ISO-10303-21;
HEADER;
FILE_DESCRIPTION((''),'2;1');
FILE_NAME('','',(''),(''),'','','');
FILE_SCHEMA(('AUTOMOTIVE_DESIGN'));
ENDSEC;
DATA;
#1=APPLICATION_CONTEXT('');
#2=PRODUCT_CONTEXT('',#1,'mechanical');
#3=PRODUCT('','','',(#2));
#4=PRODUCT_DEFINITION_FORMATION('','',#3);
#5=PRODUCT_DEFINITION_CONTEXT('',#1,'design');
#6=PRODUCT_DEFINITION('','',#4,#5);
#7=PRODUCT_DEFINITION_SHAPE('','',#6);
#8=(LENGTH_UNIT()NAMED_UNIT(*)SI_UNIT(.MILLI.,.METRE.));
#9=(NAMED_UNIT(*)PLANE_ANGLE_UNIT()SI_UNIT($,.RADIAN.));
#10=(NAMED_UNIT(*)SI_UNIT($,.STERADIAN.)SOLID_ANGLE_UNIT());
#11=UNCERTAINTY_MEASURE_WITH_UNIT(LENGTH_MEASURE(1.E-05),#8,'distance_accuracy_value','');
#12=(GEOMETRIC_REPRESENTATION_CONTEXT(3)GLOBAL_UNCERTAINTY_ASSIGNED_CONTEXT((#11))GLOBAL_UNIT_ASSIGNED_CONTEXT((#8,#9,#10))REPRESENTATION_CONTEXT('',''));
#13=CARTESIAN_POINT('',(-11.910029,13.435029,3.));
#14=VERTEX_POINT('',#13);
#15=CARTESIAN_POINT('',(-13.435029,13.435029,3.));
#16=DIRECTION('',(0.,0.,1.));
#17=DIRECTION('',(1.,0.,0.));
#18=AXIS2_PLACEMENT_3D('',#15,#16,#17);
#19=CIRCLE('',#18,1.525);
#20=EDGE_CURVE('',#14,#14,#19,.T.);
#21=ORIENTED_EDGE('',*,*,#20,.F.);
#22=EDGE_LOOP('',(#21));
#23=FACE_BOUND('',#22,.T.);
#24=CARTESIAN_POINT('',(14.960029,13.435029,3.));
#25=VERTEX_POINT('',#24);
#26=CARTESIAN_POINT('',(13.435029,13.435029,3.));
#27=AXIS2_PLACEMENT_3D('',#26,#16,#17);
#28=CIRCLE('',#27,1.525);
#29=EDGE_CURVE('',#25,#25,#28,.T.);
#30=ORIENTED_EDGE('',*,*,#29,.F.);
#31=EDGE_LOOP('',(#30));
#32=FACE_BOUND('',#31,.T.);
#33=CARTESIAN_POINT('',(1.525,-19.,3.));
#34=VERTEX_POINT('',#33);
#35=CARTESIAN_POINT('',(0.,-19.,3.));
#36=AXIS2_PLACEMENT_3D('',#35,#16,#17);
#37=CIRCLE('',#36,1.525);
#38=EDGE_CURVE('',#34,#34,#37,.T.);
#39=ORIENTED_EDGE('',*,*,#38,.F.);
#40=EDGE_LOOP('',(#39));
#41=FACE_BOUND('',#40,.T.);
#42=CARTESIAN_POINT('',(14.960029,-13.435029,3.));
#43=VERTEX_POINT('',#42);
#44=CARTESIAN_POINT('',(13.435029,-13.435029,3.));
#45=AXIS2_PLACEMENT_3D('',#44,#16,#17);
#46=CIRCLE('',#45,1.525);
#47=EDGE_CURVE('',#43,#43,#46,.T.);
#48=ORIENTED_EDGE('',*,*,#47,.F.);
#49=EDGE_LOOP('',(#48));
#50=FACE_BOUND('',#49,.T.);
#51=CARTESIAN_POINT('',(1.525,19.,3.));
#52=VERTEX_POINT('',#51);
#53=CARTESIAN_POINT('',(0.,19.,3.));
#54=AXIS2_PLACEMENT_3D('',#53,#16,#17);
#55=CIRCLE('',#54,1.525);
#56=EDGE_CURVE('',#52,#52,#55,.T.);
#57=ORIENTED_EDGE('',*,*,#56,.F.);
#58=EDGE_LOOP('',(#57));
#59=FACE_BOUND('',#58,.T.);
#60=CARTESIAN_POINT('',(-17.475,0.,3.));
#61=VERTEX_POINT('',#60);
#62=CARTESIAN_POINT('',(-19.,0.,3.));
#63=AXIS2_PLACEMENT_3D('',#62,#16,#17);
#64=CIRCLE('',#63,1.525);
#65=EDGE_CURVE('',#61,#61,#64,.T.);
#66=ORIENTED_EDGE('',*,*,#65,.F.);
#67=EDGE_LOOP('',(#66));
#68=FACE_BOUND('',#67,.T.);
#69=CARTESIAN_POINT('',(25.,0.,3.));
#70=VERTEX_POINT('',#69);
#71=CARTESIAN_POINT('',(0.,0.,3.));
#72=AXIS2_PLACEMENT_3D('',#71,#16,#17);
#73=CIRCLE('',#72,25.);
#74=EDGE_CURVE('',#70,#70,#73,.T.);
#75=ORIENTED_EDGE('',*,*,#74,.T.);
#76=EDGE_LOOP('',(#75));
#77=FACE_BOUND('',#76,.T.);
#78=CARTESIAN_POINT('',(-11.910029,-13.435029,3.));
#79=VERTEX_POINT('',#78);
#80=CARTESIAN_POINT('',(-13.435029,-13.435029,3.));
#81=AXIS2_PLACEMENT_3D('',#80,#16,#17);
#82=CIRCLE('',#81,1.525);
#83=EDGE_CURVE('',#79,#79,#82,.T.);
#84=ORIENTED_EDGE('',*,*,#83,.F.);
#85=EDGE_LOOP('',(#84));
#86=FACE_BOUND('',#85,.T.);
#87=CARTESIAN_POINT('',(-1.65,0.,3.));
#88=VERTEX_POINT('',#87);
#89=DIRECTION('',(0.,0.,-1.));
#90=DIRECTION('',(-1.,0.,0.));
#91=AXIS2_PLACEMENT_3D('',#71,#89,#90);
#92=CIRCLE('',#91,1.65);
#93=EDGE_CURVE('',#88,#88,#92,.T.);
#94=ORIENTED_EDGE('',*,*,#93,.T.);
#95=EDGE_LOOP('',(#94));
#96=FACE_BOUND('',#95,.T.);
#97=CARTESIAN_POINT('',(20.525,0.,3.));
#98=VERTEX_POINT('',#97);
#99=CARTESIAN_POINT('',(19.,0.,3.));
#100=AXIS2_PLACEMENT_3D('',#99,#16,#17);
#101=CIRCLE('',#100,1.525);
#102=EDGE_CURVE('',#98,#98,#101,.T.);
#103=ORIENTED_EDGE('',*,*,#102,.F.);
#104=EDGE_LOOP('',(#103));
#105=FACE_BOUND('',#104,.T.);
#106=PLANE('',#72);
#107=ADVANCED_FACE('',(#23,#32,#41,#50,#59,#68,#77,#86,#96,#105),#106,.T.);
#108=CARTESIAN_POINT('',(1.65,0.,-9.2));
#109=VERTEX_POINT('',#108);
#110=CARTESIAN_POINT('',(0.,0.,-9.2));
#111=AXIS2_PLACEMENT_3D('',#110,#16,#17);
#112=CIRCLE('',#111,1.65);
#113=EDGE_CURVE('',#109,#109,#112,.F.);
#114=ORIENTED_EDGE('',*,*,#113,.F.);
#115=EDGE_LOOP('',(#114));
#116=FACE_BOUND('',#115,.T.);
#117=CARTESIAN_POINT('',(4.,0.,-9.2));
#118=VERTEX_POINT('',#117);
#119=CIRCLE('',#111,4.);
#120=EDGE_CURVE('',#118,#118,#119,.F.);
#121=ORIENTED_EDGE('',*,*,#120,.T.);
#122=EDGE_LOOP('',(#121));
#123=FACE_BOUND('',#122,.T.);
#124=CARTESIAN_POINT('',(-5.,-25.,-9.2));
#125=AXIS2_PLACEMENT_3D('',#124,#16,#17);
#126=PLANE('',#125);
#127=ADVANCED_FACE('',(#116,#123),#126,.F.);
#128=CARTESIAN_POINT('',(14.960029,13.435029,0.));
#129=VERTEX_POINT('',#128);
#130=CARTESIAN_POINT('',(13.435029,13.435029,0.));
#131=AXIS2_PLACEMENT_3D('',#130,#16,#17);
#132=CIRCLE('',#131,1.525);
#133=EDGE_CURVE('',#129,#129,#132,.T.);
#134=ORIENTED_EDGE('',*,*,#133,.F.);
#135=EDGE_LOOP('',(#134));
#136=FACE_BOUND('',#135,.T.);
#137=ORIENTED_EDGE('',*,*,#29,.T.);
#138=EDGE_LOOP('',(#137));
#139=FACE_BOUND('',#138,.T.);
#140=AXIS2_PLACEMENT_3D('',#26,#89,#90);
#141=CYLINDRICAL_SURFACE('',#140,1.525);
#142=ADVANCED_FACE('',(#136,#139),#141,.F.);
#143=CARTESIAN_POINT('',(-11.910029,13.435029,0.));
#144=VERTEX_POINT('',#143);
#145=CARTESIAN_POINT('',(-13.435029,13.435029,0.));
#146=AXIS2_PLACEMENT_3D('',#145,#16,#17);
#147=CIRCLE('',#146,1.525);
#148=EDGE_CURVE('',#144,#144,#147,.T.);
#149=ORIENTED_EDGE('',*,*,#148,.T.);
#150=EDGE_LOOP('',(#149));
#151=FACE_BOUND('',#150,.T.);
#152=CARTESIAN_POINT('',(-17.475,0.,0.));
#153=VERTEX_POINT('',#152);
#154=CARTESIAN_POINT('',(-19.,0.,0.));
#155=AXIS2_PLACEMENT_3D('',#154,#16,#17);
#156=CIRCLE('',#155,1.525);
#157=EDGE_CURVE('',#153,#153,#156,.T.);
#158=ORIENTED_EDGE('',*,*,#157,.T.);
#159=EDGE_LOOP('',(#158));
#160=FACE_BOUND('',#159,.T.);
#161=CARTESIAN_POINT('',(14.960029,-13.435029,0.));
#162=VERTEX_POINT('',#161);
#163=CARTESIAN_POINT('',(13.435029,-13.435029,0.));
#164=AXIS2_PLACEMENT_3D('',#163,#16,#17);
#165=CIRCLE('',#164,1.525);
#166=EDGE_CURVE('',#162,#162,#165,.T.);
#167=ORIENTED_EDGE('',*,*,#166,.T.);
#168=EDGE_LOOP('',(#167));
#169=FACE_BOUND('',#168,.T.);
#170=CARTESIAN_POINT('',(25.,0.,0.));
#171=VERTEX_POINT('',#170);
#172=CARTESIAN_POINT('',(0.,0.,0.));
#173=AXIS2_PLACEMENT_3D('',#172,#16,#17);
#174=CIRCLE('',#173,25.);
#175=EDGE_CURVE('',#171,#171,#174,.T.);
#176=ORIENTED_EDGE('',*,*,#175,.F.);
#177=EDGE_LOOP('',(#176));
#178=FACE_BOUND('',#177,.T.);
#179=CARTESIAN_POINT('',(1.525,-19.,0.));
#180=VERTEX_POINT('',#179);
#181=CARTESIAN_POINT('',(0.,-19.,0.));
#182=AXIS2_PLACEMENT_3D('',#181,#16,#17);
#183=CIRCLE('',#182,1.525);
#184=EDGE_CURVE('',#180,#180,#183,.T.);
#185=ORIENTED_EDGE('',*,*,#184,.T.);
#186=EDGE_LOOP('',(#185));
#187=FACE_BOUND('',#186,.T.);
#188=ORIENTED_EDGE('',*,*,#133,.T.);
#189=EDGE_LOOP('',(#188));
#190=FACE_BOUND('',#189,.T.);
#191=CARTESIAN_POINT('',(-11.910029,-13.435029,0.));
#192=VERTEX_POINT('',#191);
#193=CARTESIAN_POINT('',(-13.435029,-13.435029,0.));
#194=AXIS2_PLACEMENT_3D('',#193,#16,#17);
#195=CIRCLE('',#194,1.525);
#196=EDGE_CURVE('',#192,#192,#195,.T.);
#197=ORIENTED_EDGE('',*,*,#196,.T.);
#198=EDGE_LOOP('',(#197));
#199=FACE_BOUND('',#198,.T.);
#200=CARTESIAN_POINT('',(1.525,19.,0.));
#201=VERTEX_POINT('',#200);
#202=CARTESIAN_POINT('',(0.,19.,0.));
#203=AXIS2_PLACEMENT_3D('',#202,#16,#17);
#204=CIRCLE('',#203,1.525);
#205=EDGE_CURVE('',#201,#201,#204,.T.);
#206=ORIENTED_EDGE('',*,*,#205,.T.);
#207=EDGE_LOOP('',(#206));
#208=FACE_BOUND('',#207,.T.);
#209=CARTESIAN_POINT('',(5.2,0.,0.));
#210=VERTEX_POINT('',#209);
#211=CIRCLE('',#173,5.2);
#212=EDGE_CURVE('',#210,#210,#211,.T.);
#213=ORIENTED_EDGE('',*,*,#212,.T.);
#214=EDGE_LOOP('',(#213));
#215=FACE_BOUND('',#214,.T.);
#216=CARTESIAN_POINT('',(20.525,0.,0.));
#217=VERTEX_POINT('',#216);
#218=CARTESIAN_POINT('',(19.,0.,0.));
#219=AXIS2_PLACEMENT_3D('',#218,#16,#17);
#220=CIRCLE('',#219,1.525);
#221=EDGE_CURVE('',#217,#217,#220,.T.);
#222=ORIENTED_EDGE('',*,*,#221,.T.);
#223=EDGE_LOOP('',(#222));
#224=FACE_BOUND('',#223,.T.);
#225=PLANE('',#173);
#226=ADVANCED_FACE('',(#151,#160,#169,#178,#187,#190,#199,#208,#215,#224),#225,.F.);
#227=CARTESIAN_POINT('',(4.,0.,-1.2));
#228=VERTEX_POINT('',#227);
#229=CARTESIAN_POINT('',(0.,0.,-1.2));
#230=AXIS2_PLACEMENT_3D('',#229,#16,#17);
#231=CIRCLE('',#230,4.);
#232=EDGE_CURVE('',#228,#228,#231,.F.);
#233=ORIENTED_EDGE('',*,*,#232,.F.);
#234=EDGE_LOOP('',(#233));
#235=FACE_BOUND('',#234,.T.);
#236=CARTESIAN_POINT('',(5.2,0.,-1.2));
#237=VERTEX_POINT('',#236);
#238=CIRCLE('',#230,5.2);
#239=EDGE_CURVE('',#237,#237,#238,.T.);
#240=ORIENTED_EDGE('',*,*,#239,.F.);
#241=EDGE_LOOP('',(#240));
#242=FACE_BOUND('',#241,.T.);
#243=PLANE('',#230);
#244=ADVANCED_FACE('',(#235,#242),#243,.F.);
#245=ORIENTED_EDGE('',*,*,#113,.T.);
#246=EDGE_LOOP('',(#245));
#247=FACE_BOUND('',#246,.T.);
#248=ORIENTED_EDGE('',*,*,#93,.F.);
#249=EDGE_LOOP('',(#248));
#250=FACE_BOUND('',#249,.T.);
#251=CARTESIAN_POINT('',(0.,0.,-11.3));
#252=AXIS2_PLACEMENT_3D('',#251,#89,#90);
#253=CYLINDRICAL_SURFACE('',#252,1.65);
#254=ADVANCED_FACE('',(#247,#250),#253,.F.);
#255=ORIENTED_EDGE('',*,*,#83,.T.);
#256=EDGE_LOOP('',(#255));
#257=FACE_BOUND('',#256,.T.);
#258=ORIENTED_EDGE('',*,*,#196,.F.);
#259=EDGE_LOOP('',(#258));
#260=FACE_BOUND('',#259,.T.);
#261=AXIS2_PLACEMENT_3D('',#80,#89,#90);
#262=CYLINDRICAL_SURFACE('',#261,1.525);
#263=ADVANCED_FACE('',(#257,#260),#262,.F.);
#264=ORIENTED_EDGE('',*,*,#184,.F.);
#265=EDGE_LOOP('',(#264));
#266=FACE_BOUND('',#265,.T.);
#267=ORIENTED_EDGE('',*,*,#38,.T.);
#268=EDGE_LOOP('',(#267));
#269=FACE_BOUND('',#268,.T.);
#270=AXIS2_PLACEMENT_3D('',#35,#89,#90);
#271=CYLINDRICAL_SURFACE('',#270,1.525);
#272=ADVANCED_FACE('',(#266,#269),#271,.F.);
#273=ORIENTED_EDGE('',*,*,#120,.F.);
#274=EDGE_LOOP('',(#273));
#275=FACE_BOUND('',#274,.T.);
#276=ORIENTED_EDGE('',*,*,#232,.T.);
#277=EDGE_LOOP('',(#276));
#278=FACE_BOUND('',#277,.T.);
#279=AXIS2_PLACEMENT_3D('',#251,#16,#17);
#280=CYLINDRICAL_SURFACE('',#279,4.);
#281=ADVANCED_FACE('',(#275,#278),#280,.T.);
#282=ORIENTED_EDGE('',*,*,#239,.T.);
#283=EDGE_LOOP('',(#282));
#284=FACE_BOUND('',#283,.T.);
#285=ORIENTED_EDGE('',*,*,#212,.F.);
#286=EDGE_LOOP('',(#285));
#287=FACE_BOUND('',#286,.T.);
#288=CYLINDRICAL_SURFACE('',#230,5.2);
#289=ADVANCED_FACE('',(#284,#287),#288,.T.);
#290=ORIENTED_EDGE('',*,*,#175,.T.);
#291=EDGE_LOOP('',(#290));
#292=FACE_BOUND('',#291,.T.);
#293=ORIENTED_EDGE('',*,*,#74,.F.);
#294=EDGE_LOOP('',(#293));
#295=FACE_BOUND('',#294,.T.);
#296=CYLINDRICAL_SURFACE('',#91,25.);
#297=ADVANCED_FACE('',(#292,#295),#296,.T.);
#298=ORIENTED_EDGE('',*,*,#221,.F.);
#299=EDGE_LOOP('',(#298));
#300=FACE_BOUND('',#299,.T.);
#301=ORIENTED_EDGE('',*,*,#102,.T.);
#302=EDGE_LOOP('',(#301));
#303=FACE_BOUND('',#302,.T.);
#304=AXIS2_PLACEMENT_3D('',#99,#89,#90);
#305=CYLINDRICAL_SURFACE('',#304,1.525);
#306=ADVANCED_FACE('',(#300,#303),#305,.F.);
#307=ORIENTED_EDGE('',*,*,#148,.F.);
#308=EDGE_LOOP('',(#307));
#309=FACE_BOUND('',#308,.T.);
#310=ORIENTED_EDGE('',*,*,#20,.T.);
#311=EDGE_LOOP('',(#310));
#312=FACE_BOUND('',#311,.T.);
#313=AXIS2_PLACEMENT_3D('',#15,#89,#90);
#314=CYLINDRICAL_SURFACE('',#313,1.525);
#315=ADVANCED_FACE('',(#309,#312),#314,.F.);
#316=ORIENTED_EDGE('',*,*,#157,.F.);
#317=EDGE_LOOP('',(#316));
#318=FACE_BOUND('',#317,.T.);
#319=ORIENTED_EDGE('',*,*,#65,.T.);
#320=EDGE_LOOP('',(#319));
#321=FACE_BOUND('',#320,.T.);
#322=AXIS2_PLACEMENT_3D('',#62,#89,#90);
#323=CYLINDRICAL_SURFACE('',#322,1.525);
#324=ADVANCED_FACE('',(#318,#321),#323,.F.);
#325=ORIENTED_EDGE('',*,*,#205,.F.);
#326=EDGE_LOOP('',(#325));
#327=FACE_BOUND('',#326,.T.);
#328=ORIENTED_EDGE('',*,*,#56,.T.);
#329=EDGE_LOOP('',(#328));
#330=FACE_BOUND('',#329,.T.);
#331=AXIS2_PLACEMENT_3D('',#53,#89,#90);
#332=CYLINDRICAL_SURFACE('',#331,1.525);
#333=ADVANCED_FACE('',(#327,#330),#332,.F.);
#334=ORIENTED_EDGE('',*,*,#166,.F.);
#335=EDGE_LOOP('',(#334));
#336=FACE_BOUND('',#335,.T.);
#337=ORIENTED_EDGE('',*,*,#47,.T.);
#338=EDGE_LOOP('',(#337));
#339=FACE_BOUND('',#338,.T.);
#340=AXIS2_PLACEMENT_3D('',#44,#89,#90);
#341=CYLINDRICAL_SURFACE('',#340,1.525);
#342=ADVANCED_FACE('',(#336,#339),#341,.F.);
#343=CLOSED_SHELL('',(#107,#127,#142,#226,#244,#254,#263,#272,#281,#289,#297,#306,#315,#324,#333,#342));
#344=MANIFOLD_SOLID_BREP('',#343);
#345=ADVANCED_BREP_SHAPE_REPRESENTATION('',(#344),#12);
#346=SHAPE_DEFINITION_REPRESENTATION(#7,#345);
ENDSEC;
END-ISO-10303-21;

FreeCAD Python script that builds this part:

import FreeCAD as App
import Part
import Sketcher
from FreeCAD import Vector
Q = App.Units.Quantity


def add_polygon(sketch, points):
    """Adds a closed chain of lines whose ends are joined by coincident constraints."""
    first, n = sketch.GeometryCount, len(points)
    for a, b in zip(points, points[1:] + points[:1]):
        sketch.addGeometry(Part.LineSegment(App.Vector(*a, 0), App.Vector(*b, 0)), False)
    for i in range(n):
        sketch.addConstraint(Sketcher.Constraint("Coincident", first + i, 2, first + (i + 1) % n, 1))

doc = App.newDocument("Part")
body = doc.addObject("PartDesign::Body", "Body")

sketch1 = body.newObject("Sketcher::SketchObject", "Sketch")
sketch1.AttachmentSupport = (doc.getObject("XY_Plane"), [""])
sketch1.MapMode = "FlatFace"
sketch1.addGeometry([
    Part.Circle(Vector(0, 0, 0), Vector(0, 0, 1), 25),
    Part.Circle(Vector(-13.435029, -13.435029, 0), Vector(0, 0, 1), 1.525),
    Part.Circle(Vector(0, -19, 0), Vector(0, 0, 1), 1.525),
    Part.Circle(Vector(13.435029, -13.435029, 0), Vector(0, 0, 1), 1.525),
    Part.Circle(Vector(-19, 0, 0), Vector(0, 0, 1), 1.525),
    Part.Circle(Vector(-13.435029, 13.435029, 0), Vector(0, 0, 1), 1.525),
    Part.Circle(Vector(19, 0, 0), Vector(0, 0, 1), 1.525),
    Part.Circle(Vector(0, 19, 0), Vector(0, 0, 1), 1.525),
    Part.Circle(Vector(13.435029, 13.435029, 0), Vector(0, 0, 1), 1.525),
], False)
sketch1.addConstraint([
    Sketcher.Constraint("Coincident", 0, 3, -1, 1),
    Sketcher.Constraint("Equal", 1, 2),
    Sketcher.Constraint("Equal", 2, 3),
    Sketcher.Constraint("Equal", 3, 4),
    Sketcher.Constraint("Equal", 4, 5),
    Sketcher.Constraint("Equal", 5, 6),
    Sketcher.Constraint("Equal", 6, 7),
    Sketcher.Constraint("Equal", 7, 8),
    Sketcher.Constraint("Symmetric", 3, 3, 5, 3, -1, 1),
    Sketcher.Constraint("Symmetric", 4, 3, 6, 3, -1, 1),
    Sketcher.Constraint("Symmetric", 2, 3, 7, 3, -1, 1),
    Sketcher.Constraint("Symmetric", 1, 3, 8, 3, -1, 1),
    Sketcher.Constraint("Symmetric", 1, 3, 3, 3, -2),
    Sketcher.Constraint("PointOnObject", 2, 3, -2),
    Sketcher.Constraint("PointOnObject", 4, 3, -1),
    Sketcher.Constraint("Diameter", 0, Q("50 mm")),
    Sketcher.Constraint("Diameter", 1, Q("3.05 mm")),
    Sketcher.Constraint("DistanceY", 2, 3, -1, 1, Q("19 mm")),
    Sketcher.Constraint("DistanceX", 4, 3, -1, 1, Q("19 mm")),
    Sketcher.Constraint("DistanceX", 1, 3, -1, 1, Q("13.435029 mm")),
    Sketcher.Constraint("DistanceY", 1, 3, -1, 1, Q("13.435029 mm")),
])
pad1 = body.newObject("PartDesign::Pad", "Pad")
pad1.Profile = sketch1
pad1.Length = 3

sketch2 = body.newObject("Sketcher::SketchObject", "Sketch001")
sketch2.AttachmentSupport = (doc.getObject("XY_Plane"), [""])
sketch2.MapMode = "FlatFace"
sketch2.addGeometry(Part.Circle(Vector(0, 0, 0), Vector(0, 0, 1), 4), False)
sketch2.addConstraint([
    Sketcher.Constraint("Coincident", 0, 3, -1, 1),
    Sketcher.Constraint("Diameter", 0, Q("8 mm")),
])
pad2 = body.newObject("PartDesign::Pad", "Pad001")
pad2.Profile = sketch2
pad2.Length = 11.3
pad2.Reversed = True

sketch3 = body.newObject("Sketcher::SketchObject", "Sketch002")
sketch3.AttachmentSupport = (doc.getObject("XY_Plane"), [""])
sketch3.MapMode = "FlatFace"
sketch3.addGeometry(Part.Circle(Vector(0, 0, 0), Vector(0, 0, 1), 5.2), False)
sketch3.addConstraint([
    Sketcher.Constraint("Coincident", 0, 3, -1, 1),
    Sketcher.Constraint("Diameter", 0, Q("10.4 mm")),
])
pad3 = body.newObject("PartDesign::Pad", "Pad002")
pad3.Profile = sketch3
pad3.Length = 1.2
pad3.Reversed = True

sketch4 = body.newObject("Sketcher::SketchObject", "Sketch003")
sketch4.AttachmentSupport = (doc.getObject("XY_Plane"), [""])
sketch4.MapMode = "FlatFace"
sketch4.AttachmentOffset = App.Placement(Vector(0, 0, -11.3), App.Rotation())
sketch4.addGeometry(Part.Circle(Vector(0, 0, 0), Vector(0, 0, 1), 1.65), False)
sketch4.addConstraint([
    Sketcher.Constraint("Coincident", 0, 3, -1, 1),
    Sketcher.Constraint("Diameter", 0, Q("3.3 mm")),
])
doc.recompute()
hole = body.newObject("PartDesign::Hole", "Hole")
hole.Profile = sketch4
hole.ThreadType = "None"
hole.Diameter = 3.3
hole.DepthType = "ThroughAll"
hole.Reversed = True

sketch5 = body.newObject("Sketcher::SketchObject", "Sketch004")
sketch5.AttachmentSupport = (doc.getObject("XZ_Plane"), [""])
sketch5.MapMode = "FlatFace"
add_polygon(sketch5, [(-5, -11.3), (-5, -9.2), (4, -9.2), (4, -11.3)])
sketch5.addConstraint([
    Sketcher.Constraint("Vertical", 0),
    Sketcher.Constraint("Horizontal", 1),
    Sketcher.Constraint("Vertical", 2),
    Sketcher.Constraint("Horizontal", 3),
    Sketcher.Constraint("DistanceX", 1, 1, 1, 2, Q("9 mm")),
    Sketcher.Constraint("DistanceY", 0, 1, 0, 2, Q("2.1 mm")),
    Sketcher.Constraint("DistanceX", 0, 2, -1, 1, Q("5 mm")),
    Sketcher.Constraint("DistanceY", 0, 2, -1, 1, Q("9.2 mm")),
])
pocket1 = body.newObject("PartDesign::Pocket", "Pocket")
pocket1.Profile = sketch5
pocket1.Type = "ThroughAll"
pocket1.Midplane = True

doc.recompute()
